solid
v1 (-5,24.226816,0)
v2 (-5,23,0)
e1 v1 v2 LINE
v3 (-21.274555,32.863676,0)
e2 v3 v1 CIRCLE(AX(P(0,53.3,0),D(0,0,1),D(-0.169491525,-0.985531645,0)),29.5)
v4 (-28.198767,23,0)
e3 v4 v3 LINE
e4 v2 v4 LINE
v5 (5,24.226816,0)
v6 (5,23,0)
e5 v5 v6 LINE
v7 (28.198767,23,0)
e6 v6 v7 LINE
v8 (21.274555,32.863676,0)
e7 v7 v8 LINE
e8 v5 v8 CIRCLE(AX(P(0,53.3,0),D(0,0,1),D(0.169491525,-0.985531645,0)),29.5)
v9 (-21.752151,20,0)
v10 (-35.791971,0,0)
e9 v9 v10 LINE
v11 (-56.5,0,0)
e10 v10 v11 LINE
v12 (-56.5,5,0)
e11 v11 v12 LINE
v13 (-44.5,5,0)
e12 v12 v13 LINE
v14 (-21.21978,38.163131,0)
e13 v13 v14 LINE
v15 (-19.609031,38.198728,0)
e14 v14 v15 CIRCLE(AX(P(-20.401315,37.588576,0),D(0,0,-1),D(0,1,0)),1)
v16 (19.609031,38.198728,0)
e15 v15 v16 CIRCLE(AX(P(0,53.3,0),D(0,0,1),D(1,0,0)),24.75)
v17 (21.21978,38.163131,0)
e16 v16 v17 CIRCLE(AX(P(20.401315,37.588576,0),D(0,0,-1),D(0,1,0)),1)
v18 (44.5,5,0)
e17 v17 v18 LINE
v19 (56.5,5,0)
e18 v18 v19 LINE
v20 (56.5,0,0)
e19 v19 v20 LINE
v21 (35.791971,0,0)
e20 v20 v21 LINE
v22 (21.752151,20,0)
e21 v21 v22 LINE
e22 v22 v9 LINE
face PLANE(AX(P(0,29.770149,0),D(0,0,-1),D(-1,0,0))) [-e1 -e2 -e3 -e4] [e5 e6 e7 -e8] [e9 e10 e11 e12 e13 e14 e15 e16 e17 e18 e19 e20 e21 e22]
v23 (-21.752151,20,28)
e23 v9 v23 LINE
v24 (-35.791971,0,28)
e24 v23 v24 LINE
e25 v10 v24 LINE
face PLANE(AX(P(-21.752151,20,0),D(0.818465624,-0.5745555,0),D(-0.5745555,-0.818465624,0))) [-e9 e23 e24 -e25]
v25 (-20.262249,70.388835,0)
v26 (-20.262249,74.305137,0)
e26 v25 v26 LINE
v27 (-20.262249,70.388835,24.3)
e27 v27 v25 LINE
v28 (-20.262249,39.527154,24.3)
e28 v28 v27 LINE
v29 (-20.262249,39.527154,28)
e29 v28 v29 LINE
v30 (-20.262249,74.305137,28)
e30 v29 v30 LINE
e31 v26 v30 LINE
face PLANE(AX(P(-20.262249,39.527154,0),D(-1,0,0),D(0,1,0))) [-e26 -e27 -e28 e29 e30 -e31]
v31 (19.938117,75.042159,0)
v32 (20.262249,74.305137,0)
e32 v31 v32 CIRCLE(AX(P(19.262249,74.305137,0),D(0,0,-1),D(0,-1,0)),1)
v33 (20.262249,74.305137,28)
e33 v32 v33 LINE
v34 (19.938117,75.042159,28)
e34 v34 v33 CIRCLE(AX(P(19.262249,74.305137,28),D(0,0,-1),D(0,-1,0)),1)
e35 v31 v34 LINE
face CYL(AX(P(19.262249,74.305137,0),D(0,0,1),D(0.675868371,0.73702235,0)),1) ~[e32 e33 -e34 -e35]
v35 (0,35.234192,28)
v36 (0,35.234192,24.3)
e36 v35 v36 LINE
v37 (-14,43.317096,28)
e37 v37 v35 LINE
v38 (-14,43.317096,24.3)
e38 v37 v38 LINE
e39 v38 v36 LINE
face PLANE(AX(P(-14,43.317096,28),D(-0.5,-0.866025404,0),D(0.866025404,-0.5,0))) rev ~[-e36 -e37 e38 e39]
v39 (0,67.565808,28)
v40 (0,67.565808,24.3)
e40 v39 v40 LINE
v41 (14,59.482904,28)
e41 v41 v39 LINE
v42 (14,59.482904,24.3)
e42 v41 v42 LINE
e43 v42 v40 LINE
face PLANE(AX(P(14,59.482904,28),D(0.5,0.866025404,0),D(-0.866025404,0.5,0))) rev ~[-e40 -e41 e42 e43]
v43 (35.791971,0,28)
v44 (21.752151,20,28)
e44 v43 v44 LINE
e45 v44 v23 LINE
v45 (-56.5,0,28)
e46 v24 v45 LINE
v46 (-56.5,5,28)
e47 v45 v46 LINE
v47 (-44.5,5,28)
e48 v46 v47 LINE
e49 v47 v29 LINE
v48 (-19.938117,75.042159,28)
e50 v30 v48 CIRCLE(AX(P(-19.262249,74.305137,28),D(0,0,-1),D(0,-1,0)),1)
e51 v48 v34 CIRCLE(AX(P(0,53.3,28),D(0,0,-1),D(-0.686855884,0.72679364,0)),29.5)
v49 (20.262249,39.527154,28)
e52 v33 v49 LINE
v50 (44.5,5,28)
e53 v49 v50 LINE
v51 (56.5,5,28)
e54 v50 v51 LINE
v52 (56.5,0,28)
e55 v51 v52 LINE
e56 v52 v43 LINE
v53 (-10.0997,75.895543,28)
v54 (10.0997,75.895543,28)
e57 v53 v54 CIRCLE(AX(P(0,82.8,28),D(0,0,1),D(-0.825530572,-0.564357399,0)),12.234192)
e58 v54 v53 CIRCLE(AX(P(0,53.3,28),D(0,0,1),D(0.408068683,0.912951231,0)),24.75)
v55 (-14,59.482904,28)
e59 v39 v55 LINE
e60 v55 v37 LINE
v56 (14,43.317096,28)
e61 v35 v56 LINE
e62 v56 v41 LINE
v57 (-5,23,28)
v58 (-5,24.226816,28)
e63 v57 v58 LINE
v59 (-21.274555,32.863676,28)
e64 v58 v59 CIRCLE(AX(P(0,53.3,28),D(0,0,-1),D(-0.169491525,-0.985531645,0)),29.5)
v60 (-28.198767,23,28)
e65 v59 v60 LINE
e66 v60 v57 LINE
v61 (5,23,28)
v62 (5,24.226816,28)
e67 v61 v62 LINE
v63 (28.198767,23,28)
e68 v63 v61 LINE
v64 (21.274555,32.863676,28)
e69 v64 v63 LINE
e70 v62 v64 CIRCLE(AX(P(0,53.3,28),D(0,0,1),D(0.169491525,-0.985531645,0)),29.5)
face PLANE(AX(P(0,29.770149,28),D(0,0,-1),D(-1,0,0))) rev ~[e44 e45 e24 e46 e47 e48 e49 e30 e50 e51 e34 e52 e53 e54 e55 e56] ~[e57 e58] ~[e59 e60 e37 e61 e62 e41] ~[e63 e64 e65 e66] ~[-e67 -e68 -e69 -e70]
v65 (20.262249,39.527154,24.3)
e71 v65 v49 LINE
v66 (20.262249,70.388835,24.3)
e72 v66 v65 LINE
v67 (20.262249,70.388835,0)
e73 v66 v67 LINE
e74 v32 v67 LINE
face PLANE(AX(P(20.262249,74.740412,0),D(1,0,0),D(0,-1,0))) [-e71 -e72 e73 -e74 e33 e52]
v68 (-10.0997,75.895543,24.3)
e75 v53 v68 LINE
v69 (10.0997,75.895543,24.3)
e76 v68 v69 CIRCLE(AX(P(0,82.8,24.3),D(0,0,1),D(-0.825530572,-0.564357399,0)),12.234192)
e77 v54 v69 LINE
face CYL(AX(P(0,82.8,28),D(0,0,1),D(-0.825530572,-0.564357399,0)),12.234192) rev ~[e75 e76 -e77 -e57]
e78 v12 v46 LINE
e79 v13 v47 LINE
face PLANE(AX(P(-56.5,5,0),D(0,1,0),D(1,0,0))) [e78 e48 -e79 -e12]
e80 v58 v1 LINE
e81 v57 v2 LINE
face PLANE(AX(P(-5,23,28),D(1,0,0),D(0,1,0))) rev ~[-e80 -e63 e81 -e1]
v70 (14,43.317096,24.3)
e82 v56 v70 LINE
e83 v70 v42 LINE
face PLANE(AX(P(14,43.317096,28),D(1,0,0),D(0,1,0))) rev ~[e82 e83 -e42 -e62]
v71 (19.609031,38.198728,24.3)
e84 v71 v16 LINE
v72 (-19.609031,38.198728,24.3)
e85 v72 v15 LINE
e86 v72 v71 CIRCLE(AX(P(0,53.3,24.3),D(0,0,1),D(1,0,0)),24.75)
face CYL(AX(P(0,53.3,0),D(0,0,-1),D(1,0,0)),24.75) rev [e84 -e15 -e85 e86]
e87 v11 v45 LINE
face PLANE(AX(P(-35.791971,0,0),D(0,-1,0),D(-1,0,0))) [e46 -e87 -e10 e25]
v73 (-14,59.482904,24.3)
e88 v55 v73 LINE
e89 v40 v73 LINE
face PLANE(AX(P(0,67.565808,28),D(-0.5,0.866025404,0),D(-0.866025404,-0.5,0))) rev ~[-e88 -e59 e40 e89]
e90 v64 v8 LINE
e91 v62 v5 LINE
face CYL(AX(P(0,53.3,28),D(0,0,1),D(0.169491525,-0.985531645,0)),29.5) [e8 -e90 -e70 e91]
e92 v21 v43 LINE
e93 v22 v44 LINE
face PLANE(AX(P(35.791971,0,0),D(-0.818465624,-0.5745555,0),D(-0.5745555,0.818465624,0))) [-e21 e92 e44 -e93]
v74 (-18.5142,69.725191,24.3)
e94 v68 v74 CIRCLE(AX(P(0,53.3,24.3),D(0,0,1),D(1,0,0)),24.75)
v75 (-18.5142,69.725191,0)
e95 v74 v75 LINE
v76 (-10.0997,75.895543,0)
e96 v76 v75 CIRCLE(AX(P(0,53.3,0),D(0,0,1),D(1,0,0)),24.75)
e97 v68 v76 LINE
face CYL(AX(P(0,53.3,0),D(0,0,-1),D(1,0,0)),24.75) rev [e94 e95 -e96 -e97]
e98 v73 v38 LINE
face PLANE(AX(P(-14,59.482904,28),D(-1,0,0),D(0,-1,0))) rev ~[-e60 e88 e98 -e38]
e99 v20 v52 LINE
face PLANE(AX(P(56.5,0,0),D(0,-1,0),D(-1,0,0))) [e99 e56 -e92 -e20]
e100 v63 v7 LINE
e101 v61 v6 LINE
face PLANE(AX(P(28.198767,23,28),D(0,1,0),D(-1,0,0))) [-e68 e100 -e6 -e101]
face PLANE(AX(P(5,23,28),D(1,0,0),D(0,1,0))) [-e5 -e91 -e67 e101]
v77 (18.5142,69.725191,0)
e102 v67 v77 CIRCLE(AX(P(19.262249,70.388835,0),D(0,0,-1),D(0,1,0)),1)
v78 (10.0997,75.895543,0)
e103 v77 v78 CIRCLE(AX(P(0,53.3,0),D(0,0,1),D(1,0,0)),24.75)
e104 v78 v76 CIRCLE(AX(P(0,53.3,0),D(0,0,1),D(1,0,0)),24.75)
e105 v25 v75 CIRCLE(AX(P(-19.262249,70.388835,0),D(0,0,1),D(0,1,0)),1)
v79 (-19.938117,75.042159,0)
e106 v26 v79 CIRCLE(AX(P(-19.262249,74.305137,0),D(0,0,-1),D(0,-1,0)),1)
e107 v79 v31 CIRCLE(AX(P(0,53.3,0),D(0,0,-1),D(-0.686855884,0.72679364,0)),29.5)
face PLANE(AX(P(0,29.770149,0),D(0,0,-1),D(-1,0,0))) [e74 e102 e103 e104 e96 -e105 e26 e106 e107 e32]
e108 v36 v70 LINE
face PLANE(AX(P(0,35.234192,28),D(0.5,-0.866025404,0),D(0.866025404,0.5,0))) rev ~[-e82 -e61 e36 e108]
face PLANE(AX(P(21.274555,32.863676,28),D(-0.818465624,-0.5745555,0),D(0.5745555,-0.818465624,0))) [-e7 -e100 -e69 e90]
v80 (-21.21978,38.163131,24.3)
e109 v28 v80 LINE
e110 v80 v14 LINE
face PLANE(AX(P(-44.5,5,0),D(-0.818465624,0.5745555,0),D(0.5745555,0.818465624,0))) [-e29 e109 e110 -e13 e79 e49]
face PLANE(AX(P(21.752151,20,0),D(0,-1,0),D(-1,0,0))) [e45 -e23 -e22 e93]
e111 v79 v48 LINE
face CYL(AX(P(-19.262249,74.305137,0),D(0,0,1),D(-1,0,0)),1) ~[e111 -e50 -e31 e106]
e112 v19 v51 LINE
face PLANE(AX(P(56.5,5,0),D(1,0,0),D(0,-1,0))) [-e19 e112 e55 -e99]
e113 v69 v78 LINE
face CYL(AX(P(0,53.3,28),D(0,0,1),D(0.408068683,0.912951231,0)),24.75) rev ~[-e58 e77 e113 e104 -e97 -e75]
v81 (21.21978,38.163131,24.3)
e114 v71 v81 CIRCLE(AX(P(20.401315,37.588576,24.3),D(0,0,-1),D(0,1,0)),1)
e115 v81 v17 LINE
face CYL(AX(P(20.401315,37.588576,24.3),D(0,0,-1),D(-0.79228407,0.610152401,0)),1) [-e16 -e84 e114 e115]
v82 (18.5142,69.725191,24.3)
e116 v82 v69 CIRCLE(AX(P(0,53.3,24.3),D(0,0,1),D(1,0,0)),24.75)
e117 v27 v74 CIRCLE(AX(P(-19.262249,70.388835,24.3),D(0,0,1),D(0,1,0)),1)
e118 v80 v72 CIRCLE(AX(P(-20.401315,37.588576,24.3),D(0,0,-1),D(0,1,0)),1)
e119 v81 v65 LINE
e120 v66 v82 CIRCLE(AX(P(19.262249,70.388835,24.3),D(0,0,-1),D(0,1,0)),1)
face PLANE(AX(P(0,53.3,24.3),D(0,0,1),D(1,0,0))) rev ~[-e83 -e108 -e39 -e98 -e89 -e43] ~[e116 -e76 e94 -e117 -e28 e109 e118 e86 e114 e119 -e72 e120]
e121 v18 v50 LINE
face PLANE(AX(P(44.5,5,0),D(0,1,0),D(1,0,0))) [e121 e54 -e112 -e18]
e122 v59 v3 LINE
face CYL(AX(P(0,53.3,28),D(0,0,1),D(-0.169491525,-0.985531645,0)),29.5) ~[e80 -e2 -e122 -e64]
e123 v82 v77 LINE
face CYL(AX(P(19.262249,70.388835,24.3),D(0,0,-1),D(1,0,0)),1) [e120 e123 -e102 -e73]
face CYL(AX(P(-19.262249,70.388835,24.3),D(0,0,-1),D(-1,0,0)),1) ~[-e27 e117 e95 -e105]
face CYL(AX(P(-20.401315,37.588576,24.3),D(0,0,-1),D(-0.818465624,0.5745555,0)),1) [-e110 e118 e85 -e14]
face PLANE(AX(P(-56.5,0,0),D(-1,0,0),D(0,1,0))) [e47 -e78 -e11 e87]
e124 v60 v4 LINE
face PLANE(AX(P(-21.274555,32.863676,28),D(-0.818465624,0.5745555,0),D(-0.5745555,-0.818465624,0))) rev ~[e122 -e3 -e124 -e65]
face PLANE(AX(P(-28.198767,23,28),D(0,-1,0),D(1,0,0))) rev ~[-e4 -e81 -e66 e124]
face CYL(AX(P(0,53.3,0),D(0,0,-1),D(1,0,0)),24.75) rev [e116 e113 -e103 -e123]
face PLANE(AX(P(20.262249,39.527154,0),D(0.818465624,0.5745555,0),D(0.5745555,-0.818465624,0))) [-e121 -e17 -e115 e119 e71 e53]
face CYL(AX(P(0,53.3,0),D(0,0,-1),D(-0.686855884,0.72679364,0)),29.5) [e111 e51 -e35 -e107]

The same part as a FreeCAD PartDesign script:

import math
import FreeCAD as App
import Part
import Sketcher
from FreeCAD import Vector
Q = App.Units.Quantity


def edges_at(feature, points):
    """Names of the edges that pass closest to the given points."""
    edges = feature.Shape.Edges
    near = lambda p: min(range(len(edges)), key=lambda i: edges[i].distToShape(Part.Vertex(*p))[0])
    return sorted({f"Edge{near(p) + 1}" for p in points})

doc = App.newDocument("Part")
body = doc.addObject("PartDesign::Body", "Body")

# Sketch on XY plane
sketch1 = doc.addObject("Sketcher::SketchObject", "Sketch")
body.addObject(sketch1)
sketch1.AttachmentSupport = (doc.XY_Plane, [""])
sketch1.MapMode = "FlatFace"
sketch1.addGeometry(Part.LineSegment(Vector(-56.5, 5, 0), Vector(-56.5, 0, 0)), False)
sketch1.addGeometry(Part.LineSegment(Vector(-56.5, 0, 0), Vector(-35.791971, 0, 0)), False)
sketch1.addGeometry(Part.LineSegment(Vector(-35.791971, 0, 0), Vector(-21.752151, 20, 0)), False)
sketch1.addGeometry(Part.LineSegment(Vector(-21.752151, 20, 0), Vector(21.752151, 20, 0)), False)
sketch1.addGeometry(Part.LineSegment(Vector(21.752151, 20, 0), Vector(35.791971, 0, 0)), False)
sketch1.addGeometry(Part.LineSegment(Vector(35.791971, 0, 0), Vector(56.5, 0, 0)), False)
sketch1.addGeometry(Part.LineSegment(Vector(56.5, 0, 0), Vector(56.5, 5, 0)), False)
sketch1.addGeometry(Part.LineSegment(Vector(56.5, 5, 0), Vector(44.5, 5, 0)), False)
sketch1.addGeometry(Part.LineSegment(Vector(44.5, 5, 0), Vector(20.262249, 39.527154, 0)), False)
sketch1.addGeometry(Part.LineSegment(Vector(20.262249, 39.527154, 0), Vector(20.262249, 74.740412, 0)), False)
sketch1.addGeometry(Part.ArcOfCircle(Part.Circle(Vector(0, 53.3, 0), Vector(0, 0, 1), 29.5), math.radians(46.618263), math.radians(133.381737)), False)
sketch1.addGeometry(Part.LineSegment(Vector(-20.262249, 74.740412, 0), Vector(-20.262249, 39.527154, 0)), False)
sketch1.addGeometry(Part.LineSegment(Vector(-20.262249, 39.527154, 0), Vector(-44.5, 5, 0)), False)
sketch1.addGeometry(Part.LineSegment(Vector(-44.5, 5, 0), Vector(-56.5, 5, 0)), False)
sketch1.addConstraint(Sketcher.Constraint("Coincident", 0, 2, 1, 1))
sketch1.addConstraint(Sketcher.Constraint("Coincident", 1, 2, 2, 1))
sketch1.addConstraint(Sketcher.Constraint("Coincident", 2, 2, 3, 1))
sketch1.addConstraint(Sketcher.Constraint("Coincident", 3, 2, 4, 1))
sketch1.addConstraint(Sketcher.Constraint("Coincident", 4, 2, 5, 1))
sketch1.addConstraint(Sketcher.Constraint("Coincident", 5, 2, 6, 1))
sketch1.addConstraint(Sketcher.Constraint("Coincident", 6, 2, 7, 1))
sketch1.addConstraint(Sketcher.Constraint("Coincident", 7, 2, 8, 1))
sketch1.addConstraint(Sketcher.Constraint("Coincident", 8, 2, 9, 1))
sketch1.addConstraint(Sketcher.Constraint("Coincident", 9, 2, 10, 1))
sketch1.addConstraint(Sketcher.Constraint("Coincident", 10, 2, 11, 1))
sketch1.addConstraint(Sketcher.Constraint("Coincident", 11, 2, 12, 1))
sketch1.addConstraint(Sketcher.Constraint("Coincident", 12, 2, 13, 1))
sketch1.addConstraint(Sketcher.Constraint("Coincident", 13, 2, 0, 1))
sketch1.addConstraint(Sketcher.Constraint("Vertical", 0))
sketch1.addConstraint(Sketcher.Constraint("Horizontal", 1))
sketch1.addConstraint(Sketcher.Constraint("Horizontal", 3))
sketch1.addConstraint(Sketcher.Constraint("Horizontal", 5))
sketch1.addConstraint(Sketcher.Constraint("Vertical", 6))
sketch1.addConstraint(Sketcher.Constraint("Horizontal", 7))
sketch1.addConstraint(Sketcher.Constraint("Vertical", 9))
sketch1.addConstraint(Sketcher.Constraint("Vertical", 11))
sketch1.addConstraint(Sketcher.Constraint("Horizontal", 13))
sketch1.addConstraint(Sketcher.Constraint("Symmetric", 1, 2, 4, 2, -1, 1))
sketch1.addConstraint(Sketcher.Constraint("Symmetric", 0, 2, 5, 2, -2))
sketch1.addConstraint(Sketcher.Constraint("Symmetric", 9, 2, 10, 2, -2))
sketch1.addConstraint(Sketcher.Constraint("Symmetric", 7, 2, 12, 2, -2))
sketch1.addConstraint(Sketcher.Constraint("Parallel", 4, 8))
sketch1.addConstraint(Sketcher.Constraint("Parallel", 2, 12))
sketch1.addConstraint(Sketcher.Constraint("Horizontal", 8, 2, 11, 2))
sketch1.addConstraint(Sketcher.Constraint("Radius", 10, 29.5))
sketch1.addConstraint(Sketcher.Constraint("DistanceX", 7, 2, 7, 1, 12.0))
sketch1.addConstraint(Sketcher.Constraint("DistanceY", 0, 2, 0, 1, 5.0))
sketch1.addConstraint(Sketcher.Constraint("DistanceY", -1, 1, 2, 2, 20.0))
sketch1.addConstraint(Sketcher.Constraint("DistanceY", -1, 1, 10, 3, 53.3))
sketch1.addConstraint(Sketcher.Constraint("DistanceX", 0, 2, -1, 1, 56.5))
sketch1.addConstraint(Sketcher.Constraint("DistanceX", 3, 1, 3, 2, 43.504302))
sketch1.addConstraint(Sketcher.Constraint("DistanceX", 1, 1, 1, 2, 20.708029))
sketch1.addConstraint(Sketcher.Constraint("DistanceY", 9, 1, 9, 2, 35.213258))
pad1 = doc.addObject("PartDesign::Pad", "Pad")
body.addObject(pad1)
pad1.Profile = sketch1
pad1.Length = 28

# Sketch on XY plane
sketch2 = doc.addObject("Sketcher::SketchObject", "Sketch001")
body.addObject(sketch2)
sketch2.AttachmentSupport = (doc.XY_Plane, [""])
sketch2.MapMode = "FlatFace"
sketch2.addGeometry(Part.Circle(Vector(0, 53.3, 0), Vector(0, 0, 1), 24.75), False)
sketch2.addConstraint(Sketcher.Constraint("PointOnObject", 0, 3, -2))
sketch2.addConstraint(Sketcher.Constraint("Diameter", 0, 49.5))
sketch2.addConstraint(Sketcher.Constraint("DistanceY", -1, 1, 0, 3, 53.3))
pocket1 = doc.addObject("PartDesign::Pocket", "Pocket")
body.addObject(pocket1)
pocket1.Profile = sketch2
pocket1.Length = 24.3
pocket1.Reversed = True

# Sketch on XY plane
sketch3 = doc.addObject("Sketcher::SketchObject", "Sketch002")
body.addObject(sketch3)
sketch3.AttachmentSupport = (doc.XY_Plane, [""])
sketch3.MapMode = "FlatFace"
sketch3.AttachmentOffset = App.Placement(Vector(0, 0, 28), App.Rotation())
sketch3.addGeometry(Part.LineSegment(Vector(0, 67.565808, 0), Vector(-14, 59.482904, 0)), False)
sketch3.addGeometry(Part.LineSegment(Vector(-14, 59.482904, 0), Vector(-14, 43.317096, 0)), False)
sketch3.addGeometry(Part.LineSegment(Vector(-14, 43.317096, 0), Vector(0, 35.234192, 0)), False)
sketch3.addGeometry(Part.LineSegment(Vector(0, 35.234192, 0), Vector(14, 43.317096, 0)), False)
sketch3.addGeometry(Part.LineSegment(Vector(14, 43.317096, 0), Vector(14, 59.482904, 0)), False)
sketch3.addGeometry(Part.LineSegment(Vector(14, 59.482904, 0), Vector(0, 67.565808, 0)), False)
sketch3.addGeometry(Part.LineSegment(Vector(-21.274555, 32.863676, 0), Vector(-28.198767, 23, 0)), False)
sketch3.addGeometry(Part.LineSegment(Vector(-28.198767, 23, 0), Vector(-5, 23, 0)), False)
sketch3.addGeometry(Part.LineSegment(Vector(-5, 23, 0), Vector(-5, 24.226816, 0)), False)
sketch3.addGeometry(Part.ArcOfCircle(Part.Circle(Vector(0, 53.3, 0), Vector(0, 0, 1), 29.5), math.radians(-136.151274), math.radians(-99.758257)), False)
sketch3.addGeometry(Part.LineSegment(Vector(28.198767, 23, 0), Vector(21.274555, 32.863676, 0)), False)
sketch3.addGeometry(Part.ArcOfCircle(Part.Circle(Vector(0, 53.3, 0), Vector(0, 0, 1), 29.5), math.radians(-80.241743), math.radians(-43.848726)), False)
sketch3.addGeometry(Part.LineSegment(Vector(5, 24.226816, 0), Vector(5, 23, 0)), False)
sketch3.addGeometry(Part.LineSegment(Vector(5, 23, 0), Vector(28.198767, 23, 0)), False)
sketch3.addGeometry(Part.ArcOfCircle(Part.Circle(Vector(0, 82.8, 0), Vector(0, 0, 1), 12.234192), math.radians(-145.64232), math.radians(-34.35768)), False)
sketch3.addGeometry(Part.ArcOfCircle(Part.Circle(Vector(0, 53.3, 0), Vector(0, 0, 1), 24.75), math.radians(65.91643), math.radians(114.08357)), False)
sketch3.addConstraint(Sketcher.Constraint("Coincident", 0, 2, 1, 1))
sketch3.addConstraint(Sketcher.Constraint("Coincident", 1, 2, 2, 1))
sketch3.addConstraint(Sketcher.Constraint("Coincident", 2, 2, 3, 1))
sketch3.addConstraint(Sketcher.Constraint("Coincident", 3, 2, 4, 1))
sketch3.addConstraint(Sketcher.Constraint("Coincident", 4, 2, 5, 1))
sketch3.addConstraint(Sketcher.Constraint("Coincident", 5, 2, 0, 1))
sketch3.addConstraint(Sketcher.Constraint("Coincident", 6, 2, 7, 1))
sketch3.addConstraint(Sketcher.Constraint("Coincident", 7, 2, 8, 1))
sketch3.addConstraint(Sketcher.Constraint("Coincident", 8, 2, 9, 2))
sketch3.addConstraint(Sketcher.Constraint("Coincident", 9, 1, 6, 1))
sketch3.addConstraint(Sketcher.Constraint("Coincident", 10, 2, 11, 2))
sketch3.addConstraint(Sketcher.Constraint("Coincident", 11, 1, 12, 1))
sketch3.addConstraint(Sketcher.Constraint("Coincident", 12, 2, 13, 1))
sketch3.addConstraint(Sketcher.Constraint("Coincident", 13, 2, 10, 1))
sketch3.addConstraint(Sketcher.Constraint("Coincident", 14, 1, 15, 2))
sketch3.addConstraint(Sketcher.Constraint("Coincident", 15, 1, 14, 2))
sketch3.addConstraint(Sketcher.Constraint("Vertical", 1))
sketch3.addConstraint(Sketcher.Constraint("Vertical", 4))
sketch3.addConstraint(Sketcher.Constraint("Horizontal", 7))
sketch3.addConstraint(Sketcher.Constraint("Vertical", 8))
sketch3.addConstraint(Sketcher.Constraint("Vertical", 12))
sketch3.addConstraint(Sketcher.Constraint("Horizontal", 13))
sketch3.addConstraint(Sketcher.Constraint("Coincident", 11, 3, 9, 3))
sketch3.addConstraint(Sketcher.Constraint("Coincident", 15, 3, 9, 3))
sketch3.addConstraint(Sketcher.Constraint("Equal", 9, 11))
sketch3.addConstraint(Sketcher.Constraint("Symmetric", 1, 2, 3, 2, -2))
sketch3.addConstraint(Sketcher.Constraint("Symmetric", 9, 1, 10, 2, -2))
sketch3.addConstraint(Sketcher.Constraint("Symmetric", 7, 2, 12, 2, -2))
sketch3.addConstraint(Sketcher.Constraint("PointOnObject", 14, 3, -2))
sketch3.addConstraint(Sketcher.Constraint("PointOnObject", 2, 2, -2))
sketch3.addConstraint(Sketcher.Constraint("PointOnObject", 5, 2, -2))
sketch3.addConstraint(Sketcher.Constraint("Parallel", 0, 3))
sketch3.addConstraint(Sketcher.Constraint("Parallel", 2, 5))
sketch3.addConstraint(Sketcher.Constraint("Equal", 7, 13))
sketch3.addConstraint(Sketcher.Constraint("Radius", 9, 29.5))
sketch3.addConstraint(Sketcher.Constraint("Angle", 0, Q("-150 deg")))
sketch3.addConstraint(Sketcher.Constraint("Radius", 15, 24.75))
sketch3.addConstraint(Sketcher.Constraint("DistanceX", 0, 2, -1, 1, 14.0))
sketch3.addConstraint(Sketcher.Constraint("DistanceY", -1, 1, 6, 2, 23.0))
sketch3.addConstraint(Sketcher.Constraint("DistanceX", 7, 2, -1, 1, 5.0))
sketch3.addConstraint(Sketcher.Constraint("DistanceY", -1, 1, 9, 3, 53.3))
sketch3.addConstraint(Sketcher.Constraint("DistanceY", -1, 1, 14, 3, 82.8))
sketch3.addConstraint(Sketcher.Constraint("Radius", 14, 12.234192))
sketch3.addConstraint(Sketcher.Constraint("DistanceX", 7, 1, 7, 2, 23.198767))
sketch3.addConstraint(Sketcher.Constraint("DistanceY", 1, 2, 1, 1, 16.165808))
sketch3.addConstraint(Sketcher.Constraint("DistanceY", 8, 2, 1, 2, 19.09028))
sketch3.addConstraint(Sketcher.Constraint("DistanceY", 9, 1, 1, 2, 10.45342))
pocket2 = doc.addObject("PartDesign::Pocket", "Pocket001")
body.addObject(pocket2)
pocket2.Profile = sketch3
pocket2.Type = "ThroughAll"
doc.recompute()

fillet = doc.addObject("PartDesign::Fillet", "Fillet")
body.addObject(fillet)
fillet.Base = (pocket2, edges_at(pocket2, [
    (-20.262, 74.74, 14),
    (20.262, 74.74, 14),
    (20.416, 39.309, 12.15),
    (20.262, 67.513, 12.15),
    (-20.262, 67.513, 12.15),
    (-20.416, 39.309, 12.15),
]))
fillet.Radius = 1

doc.recompute()
